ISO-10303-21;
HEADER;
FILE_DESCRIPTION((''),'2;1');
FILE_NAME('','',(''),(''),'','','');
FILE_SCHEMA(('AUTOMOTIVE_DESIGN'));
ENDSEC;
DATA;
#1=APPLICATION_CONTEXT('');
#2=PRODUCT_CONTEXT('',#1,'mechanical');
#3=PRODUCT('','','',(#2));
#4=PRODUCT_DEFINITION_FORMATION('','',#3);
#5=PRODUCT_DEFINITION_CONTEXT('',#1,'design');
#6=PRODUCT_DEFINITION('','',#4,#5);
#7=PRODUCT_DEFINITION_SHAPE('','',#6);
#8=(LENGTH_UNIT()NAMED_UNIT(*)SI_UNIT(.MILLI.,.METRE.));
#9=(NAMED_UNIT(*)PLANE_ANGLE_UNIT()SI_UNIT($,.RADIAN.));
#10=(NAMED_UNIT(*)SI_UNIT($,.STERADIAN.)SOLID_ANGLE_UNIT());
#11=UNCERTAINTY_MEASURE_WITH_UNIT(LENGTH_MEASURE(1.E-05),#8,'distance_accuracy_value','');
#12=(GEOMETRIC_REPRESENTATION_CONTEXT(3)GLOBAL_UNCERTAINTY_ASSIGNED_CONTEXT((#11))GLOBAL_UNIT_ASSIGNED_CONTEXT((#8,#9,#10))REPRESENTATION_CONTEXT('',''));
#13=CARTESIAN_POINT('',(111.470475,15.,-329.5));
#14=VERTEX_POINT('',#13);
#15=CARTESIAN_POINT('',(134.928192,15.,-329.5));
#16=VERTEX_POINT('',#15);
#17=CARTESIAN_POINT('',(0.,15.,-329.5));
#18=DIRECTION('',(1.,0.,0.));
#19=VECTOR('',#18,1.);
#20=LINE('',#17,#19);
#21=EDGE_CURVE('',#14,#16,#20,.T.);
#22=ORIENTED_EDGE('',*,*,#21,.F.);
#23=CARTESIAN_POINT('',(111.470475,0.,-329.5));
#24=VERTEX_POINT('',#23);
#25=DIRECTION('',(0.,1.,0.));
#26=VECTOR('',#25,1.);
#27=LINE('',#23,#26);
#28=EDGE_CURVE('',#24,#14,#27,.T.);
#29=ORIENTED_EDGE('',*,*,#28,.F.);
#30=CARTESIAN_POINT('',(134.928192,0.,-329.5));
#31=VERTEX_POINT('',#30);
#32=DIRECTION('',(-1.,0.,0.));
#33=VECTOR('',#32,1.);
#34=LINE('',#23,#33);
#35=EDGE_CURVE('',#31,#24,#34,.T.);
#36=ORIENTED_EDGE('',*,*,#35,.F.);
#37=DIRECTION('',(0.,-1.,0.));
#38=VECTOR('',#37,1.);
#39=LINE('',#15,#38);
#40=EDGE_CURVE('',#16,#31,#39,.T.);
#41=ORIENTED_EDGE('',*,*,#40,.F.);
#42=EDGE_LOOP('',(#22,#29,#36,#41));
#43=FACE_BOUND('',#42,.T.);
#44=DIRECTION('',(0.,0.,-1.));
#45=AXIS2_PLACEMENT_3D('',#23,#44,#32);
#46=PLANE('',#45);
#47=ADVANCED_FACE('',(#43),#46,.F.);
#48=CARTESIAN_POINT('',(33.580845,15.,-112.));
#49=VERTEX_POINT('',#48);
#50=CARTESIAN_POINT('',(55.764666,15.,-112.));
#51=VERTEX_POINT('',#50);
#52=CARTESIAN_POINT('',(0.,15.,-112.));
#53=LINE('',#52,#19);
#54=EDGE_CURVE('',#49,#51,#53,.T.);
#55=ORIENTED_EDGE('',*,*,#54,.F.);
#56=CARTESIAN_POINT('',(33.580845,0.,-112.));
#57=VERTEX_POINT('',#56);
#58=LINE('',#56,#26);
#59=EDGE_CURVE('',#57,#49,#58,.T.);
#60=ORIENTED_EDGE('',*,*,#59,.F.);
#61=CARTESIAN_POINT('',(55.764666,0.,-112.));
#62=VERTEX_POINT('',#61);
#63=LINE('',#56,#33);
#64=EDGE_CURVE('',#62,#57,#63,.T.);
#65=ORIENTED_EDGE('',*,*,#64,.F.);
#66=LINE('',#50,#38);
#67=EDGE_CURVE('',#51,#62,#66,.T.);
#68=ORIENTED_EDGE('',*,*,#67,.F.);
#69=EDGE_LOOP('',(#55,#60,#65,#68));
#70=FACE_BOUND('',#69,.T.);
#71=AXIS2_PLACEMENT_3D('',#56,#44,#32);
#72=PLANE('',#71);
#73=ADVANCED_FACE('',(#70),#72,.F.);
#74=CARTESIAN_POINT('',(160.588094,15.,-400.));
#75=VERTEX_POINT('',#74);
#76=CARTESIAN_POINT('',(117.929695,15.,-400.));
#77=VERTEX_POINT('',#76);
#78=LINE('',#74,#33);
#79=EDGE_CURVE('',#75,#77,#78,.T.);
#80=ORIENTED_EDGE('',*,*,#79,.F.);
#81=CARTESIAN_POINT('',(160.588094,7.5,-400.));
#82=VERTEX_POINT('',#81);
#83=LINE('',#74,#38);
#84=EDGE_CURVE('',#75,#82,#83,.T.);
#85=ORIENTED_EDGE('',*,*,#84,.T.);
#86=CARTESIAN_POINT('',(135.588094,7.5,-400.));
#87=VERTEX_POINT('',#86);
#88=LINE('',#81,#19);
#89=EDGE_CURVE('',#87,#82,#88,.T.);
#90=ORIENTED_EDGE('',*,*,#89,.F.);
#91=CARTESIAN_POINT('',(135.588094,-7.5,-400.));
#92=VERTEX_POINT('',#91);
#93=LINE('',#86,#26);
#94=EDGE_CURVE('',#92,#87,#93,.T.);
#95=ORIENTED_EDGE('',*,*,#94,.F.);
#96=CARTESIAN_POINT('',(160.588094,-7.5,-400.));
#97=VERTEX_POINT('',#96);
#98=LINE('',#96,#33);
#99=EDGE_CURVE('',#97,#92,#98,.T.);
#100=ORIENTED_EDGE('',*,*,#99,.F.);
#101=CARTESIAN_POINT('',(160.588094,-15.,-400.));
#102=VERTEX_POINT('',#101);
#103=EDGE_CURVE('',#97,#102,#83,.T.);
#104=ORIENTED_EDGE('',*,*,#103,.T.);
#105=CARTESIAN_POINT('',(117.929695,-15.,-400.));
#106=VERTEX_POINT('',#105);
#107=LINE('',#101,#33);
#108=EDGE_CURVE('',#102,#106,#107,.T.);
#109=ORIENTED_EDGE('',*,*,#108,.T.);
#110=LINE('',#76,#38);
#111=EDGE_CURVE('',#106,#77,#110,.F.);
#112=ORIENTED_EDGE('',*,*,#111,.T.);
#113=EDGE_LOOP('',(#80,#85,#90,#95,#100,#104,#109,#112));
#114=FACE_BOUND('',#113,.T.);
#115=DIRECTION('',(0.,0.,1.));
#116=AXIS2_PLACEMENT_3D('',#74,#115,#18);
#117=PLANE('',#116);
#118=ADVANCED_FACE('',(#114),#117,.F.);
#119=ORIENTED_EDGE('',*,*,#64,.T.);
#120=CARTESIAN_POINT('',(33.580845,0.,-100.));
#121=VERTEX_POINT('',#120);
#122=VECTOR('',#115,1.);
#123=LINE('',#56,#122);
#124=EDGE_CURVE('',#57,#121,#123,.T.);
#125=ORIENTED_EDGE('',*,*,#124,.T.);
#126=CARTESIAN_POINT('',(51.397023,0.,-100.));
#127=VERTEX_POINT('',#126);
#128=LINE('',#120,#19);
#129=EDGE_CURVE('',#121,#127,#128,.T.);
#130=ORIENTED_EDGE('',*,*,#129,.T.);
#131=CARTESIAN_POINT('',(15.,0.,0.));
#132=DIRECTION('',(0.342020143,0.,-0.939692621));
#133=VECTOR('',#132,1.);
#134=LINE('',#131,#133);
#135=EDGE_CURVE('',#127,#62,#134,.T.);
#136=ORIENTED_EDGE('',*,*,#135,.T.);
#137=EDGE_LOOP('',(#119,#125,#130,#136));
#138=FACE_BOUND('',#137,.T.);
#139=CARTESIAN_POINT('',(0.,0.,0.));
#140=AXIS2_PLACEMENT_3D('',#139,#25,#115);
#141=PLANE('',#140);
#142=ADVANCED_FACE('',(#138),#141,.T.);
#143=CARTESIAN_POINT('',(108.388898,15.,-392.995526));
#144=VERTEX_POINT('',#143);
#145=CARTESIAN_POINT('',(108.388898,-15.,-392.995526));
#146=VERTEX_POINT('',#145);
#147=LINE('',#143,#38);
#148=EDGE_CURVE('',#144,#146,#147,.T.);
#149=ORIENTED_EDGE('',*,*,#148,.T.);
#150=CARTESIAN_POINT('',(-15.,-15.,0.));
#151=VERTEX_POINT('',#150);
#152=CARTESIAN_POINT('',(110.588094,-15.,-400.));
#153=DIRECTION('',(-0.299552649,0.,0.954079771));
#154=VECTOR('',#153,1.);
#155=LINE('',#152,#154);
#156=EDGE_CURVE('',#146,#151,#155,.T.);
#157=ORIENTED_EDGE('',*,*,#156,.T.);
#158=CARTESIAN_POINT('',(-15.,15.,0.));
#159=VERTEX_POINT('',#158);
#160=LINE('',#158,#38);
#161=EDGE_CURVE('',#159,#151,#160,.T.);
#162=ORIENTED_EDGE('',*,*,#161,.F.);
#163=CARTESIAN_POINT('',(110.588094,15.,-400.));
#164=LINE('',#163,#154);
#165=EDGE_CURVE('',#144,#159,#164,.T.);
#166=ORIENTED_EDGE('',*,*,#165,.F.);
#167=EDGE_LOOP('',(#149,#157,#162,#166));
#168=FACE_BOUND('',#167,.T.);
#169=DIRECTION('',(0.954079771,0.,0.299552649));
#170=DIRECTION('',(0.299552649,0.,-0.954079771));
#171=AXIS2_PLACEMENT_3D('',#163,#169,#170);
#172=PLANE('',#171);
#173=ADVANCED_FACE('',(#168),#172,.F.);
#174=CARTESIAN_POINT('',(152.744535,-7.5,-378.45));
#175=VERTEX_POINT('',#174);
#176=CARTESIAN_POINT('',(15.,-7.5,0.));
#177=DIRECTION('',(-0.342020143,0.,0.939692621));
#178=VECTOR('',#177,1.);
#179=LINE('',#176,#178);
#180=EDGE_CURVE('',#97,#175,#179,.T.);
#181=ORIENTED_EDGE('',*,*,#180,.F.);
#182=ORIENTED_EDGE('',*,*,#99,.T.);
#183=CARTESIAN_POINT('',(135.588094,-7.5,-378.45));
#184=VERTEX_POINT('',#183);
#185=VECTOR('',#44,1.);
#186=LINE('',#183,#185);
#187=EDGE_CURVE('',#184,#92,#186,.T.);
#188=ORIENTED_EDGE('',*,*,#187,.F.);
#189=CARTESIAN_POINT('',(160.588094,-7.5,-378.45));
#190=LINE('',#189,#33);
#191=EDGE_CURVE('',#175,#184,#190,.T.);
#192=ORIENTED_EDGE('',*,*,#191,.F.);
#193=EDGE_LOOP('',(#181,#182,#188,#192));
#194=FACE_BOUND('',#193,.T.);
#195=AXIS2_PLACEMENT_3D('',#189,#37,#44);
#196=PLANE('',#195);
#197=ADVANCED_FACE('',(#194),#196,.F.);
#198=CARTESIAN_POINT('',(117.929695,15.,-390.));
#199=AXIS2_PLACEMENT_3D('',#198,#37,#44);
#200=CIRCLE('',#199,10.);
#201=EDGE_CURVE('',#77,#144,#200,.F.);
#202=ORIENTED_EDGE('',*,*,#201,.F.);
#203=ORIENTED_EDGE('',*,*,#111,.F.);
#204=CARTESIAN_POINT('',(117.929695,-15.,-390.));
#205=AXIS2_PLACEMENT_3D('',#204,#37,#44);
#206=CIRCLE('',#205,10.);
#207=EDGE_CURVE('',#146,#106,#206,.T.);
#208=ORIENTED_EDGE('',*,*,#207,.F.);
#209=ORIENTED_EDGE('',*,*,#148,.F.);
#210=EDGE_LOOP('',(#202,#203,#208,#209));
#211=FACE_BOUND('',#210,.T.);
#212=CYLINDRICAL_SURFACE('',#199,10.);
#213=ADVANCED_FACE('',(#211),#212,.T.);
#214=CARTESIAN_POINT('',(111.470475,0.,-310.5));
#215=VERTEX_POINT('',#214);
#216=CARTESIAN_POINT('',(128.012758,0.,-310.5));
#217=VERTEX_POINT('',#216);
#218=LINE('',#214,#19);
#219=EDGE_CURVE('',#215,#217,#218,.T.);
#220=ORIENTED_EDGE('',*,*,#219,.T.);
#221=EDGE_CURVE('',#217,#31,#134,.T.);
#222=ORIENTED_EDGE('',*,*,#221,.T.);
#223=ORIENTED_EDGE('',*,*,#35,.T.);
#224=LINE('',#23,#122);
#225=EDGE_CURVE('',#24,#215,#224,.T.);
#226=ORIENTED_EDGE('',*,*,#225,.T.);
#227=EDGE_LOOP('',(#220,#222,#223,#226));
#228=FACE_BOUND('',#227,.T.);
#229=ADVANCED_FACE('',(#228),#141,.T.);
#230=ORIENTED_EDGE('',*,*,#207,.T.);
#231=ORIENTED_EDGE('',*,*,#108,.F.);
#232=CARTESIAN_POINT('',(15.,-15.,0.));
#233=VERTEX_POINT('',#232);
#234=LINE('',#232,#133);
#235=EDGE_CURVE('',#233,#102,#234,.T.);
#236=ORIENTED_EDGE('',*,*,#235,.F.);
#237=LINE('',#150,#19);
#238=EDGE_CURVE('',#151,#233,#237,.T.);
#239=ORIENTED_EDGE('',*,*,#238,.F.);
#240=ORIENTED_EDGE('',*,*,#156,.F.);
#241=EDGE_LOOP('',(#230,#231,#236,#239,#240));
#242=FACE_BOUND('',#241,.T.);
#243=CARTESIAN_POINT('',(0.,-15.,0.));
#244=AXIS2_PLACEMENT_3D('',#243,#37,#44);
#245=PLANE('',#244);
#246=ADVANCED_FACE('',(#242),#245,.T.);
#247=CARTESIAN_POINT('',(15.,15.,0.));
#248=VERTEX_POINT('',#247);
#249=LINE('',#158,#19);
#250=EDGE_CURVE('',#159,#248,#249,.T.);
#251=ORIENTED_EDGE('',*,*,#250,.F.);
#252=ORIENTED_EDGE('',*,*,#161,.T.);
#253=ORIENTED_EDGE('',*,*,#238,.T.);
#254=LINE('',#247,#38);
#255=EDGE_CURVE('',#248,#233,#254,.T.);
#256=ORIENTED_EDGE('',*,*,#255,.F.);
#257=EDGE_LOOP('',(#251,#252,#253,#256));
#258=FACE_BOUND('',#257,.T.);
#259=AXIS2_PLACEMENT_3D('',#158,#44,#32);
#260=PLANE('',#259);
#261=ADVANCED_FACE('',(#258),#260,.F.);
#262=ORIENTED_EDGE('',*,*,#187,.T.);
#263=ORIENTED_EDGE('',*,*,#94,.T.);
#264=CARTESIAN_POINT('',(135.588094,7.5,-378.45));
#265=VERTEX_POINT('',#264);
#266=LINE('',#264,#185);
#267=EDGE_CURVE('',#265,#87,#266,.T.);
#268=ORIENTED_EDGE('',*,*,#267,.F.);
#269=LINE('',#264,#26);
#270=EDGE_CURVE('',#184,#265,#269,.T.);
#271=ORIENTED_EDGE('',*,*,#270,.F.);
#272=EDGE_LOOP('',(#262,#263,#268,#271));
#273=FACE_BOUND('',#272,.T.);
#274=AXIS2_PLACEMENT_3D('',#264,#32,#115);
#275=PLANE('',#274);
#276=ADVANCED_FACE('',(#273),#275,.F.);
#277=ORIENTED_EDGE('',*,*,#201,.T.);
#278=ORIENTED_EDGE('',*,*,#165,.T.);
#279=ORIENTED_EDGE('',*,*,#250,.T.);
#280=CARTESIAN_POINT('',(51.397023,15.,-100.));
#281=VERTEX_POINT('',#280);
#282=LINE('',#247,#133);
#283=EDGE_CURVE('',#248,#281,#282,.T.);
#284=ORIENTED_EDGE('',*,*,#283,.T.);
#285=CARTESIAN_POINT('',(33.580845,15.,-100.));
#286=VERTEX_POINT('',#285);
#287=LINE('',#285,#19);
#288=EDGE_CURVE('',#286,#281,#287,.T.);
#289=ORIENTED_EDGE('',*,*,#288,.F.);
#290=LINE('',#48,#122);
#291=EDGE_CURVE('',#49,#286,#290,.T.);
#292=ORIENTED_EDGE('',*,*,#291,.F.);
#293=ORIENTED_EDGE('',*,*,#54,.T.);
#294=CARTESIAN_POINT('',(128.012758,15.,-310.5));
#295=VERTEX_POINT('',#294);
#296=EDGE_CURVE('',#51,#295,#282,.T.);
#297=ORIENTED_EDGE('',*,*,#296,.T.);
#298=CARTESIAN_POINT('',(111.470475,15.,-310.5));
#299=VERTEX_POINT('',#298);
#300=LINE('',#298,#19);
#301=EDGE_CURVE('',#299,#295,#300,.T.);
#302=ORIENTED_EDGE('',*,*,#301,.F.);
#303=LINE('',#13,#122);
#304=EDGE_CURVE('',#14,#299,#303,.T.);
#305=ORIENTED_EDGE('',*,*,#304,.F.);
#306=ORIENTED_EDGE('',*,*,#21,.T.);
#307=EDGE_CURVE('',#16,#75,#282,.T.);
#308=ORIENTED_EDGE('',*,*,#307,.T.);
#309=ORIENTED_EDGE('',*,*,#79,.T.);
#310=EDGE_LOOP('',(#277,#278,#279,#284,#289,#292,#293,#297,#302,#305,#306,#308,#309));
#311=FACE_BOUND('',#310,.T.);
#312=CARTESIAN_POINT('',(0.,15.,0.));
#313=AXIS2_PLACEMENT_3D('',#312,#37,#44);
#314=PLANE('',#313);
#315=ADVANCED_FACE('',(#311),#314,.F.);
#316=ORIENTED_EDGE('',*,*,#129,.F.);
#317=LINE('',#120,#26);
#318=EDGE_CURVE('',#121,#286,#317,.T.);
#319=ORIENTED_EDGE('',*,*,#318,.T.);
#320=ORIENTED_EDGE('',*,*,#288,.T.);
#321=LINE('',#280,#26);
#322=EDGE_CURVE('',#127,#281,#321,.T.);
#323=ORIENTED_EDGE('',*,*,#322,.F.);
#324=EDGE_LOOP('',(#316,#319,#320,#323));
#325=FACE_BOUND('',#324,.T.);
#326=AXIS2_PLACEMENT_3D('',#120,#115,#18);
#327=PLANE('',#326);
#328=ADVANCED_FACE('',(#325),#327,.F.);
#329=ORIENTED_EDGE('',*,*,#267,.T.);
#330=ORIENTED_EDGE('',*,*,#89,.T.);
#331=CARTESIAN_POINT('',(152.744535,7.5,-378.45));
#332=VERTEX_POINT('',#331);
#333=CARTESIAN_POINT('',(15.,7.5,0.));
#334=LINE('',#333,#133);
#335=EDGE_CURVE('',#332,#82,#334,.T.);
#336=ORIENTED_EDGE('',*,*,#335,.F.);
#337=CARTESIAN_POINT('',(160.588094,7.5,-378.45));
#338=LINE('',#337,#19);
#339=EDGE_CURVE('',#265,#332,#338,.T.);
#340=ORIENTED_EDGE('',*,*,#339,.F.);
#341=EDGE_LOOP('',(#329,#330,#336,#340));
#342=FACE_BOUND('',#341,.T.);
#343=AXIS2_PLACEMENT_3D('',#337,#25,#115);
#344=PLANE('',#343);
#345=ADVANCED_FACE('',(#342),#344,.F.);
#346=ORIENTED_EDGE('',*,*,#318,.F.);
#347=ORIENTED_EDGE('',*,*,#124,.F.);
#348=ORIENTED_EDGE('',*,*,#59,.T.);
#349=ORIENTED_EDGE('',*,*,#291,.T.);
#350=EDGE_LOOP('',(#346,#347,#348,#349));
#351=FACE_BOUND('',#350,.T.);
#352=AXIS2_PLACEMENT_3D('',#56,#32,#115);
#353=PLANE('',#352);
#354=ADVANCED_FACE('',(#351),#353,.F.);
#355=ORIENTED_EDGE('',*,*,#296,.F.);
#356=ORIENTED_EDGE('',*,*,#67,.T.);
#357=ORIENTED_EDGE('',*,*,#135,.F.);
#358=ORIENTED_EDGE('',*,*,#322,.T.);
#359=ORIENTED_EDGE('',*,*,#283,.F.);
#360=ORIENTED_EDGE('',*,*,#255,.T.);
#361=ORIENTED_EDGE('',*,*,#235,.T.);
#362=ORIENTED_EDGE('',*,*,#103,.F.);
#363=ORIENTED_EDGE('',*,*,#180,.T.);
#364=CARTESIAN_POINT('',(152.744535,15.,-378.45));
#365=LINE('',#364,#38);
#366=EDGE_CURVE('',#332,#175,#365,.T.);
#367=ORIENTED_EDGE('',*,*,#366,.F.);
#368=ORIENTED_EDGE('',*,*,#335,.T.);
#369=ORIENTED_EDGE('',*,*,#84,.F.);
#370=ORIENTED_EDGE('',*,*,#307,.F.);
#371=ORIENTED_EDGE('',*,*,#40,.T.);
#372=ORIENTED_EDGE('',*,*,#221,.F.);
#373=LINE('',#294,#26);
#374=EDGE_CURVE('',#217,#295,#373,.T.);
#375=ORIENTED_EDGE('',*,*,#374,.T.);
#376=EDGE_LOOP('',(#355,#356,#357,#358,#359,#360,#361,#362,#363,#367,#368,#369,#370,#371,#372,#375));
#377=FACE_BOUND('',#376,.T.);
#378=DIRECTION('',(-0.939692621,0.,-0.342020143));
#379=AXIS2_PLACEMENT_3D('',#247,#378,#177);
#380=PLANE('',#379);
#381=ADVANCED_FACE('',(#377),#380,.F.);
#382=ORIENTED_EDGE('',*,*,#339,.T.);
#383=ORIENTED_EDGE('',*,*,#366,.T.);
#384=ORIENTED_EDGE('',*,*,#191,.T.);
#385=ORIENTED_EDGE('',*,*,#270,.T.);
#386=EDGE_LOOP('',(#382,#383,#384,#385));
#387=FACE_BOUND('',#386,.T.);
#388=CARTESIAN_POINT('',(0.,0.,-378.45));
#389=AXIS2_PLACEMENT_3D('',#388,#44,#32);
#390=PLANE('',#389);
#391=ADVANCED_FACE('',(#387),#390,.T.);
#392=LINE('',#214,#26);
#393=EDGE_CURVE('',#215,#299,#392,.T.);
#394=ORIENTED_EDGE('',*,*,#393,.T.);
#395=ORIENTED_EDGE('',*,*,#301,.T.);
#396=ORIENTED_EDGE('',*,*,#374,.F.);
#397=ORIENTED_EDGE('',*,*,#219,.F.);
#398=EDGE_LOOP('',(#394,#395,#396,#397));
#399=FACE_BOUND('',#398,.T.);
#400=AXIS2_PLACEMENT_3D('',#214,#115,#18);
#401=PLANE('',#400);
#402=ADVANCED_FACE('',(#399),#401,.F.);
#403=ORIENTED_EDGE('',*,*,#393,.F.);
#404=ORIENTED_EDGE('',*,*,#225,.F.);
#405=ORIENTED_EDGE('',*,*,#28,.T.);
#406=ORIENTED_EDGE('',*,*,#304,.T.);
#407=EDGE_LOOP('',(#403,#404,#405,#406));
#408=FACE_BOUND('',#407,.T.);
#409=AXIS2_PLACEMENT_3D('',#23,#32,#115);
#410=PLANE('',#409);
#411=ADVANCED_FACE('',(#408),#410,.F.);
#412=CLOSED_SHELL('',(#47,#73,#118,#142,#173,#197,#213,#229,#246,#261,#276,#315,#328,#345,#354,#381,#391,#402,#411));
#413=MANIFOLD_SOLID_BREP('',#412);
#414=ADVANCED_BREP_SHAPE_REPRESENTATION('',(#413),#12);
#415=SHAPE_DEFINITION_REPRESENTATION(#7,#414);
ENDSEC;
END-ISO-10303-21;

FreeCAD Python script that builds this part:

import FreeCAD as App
import Part
import Sketcher
from FreeCAD import Vector
Q = App.Units.Quantity


def edges_at(feature, points):
    """Names of the edges that pass closest to the given points."""
    edges = feature.Shape.Edges
    near = lambda p: min(range(len(edges)), key=lambda i: edges[i].distToShape(Part.Vertex(*p))[0])
    return sorted({f"Edge{near(p) + 1}" for p in points})


def add_polygon(sketch, points):
    """Adds a closed chain of lines whose ends are joined by coincident constraints."""
    first, n = sketch.GeometryCount, len(points)
    for a, b in zip(points, points[1:] + points[:1]):
        sketch.addGeometry(Part.LineSegment(App.Vector(*a, 0), App.Vector(*b, 0)), False)
    for i in range(n):
        sketch.addConstraint(Sketcher.Constraint("Coincident", first + i, 2, first + (i + 1) % n, 1))

doc = App.newDocument("Part")
body = doc.addObject("PartDesign::Body", "Body")

# Sketch on XZ plane
sketch1 = body.newObject("Sketcher::SketchObject", "Sketch")
sketch1.AttachmentSupport = (doc.getObject("XZ_Plane"), [""])
sketch1.MapMode = "FlatFace"
add_polygon(sketch1, [(15, 0), (160.588094, -400), (110.588094, -400), (-15, 0)])  # lines 0-3
sketch1.addConstraint(Sketcher.Constraint("Horizontal", 1))
sketch1.addConstraint(Sketcher.Constraint("Horizontal", 3))
sketch1.addConstraint(Sketcher.Constraint("Symmetric", 2, 2, 3, 2, -1, 1))
sketch1.addConstraint(Sketcher.Constraint("DistanceX", 1, 2, 1, 1, Q("50 mm")))
sketch1.addConstraint(Sketcher.Constraint("DistanceX", 3, 1, 3, 2, Q("30 mm")))
sketch1.addConstraint(Sketcher.Constraint("Angle", 0, Q("-70 deg")))
sketch1.addConstraint(Sketcher.Constraint("DistanceY", 0, 2, -1, 1, Q("400 mm")))
pad1 = body.newObject("PartDesign::Pad", "Pad")
pad1.Profile = sketch1
pad1.Length = 30
pad1.Midplane = True

# Sketch on XY plane
sketch2 = body.newObject("Sketcher::SketchObject", "Sketch001")
sketch2.AttachmentSupport = (doc.getObject("XY_Plane"), [""])
sketch2.MapMode = "FlatFace"
sketch2.AttachmentOffset = App.Placement(Vector(0, 0, -400), App.Rotation())
add_polygon(sketch2, [(160.588094, 7.5), (160.588094, -7.5), (135.588094, -7.5), (135.588094, 7.5)])  # lines 0-3
sketch2.addConstraint(Sketcher.Constraint("Vertical", 0))
sketch2.addConstraint(Sketcher.Constraint("Horizontal", 1))
sketch2.addConstraint(Sketcher.Constraint("Vertical", 2))
sketch2.addConstraint(Sketcher.Constraint("Horizontal", 3))
sketch2.addConstraint(Sketcher.Constraint("DistanceX", 1, 2, 1, 1, Q("25 mm")))
sketch2.addConstraint(Sketcher.Constraint("DistanceY", 0, 2, 0, 1, Q("15 mm")))
sketch2.addConstraint(Sketcher.Constraint("DistanceY", 0, 2, -1, 1, Q("7.5 mm")))
sketch2.addConstraint(Sketcher.Constraint("DistanceX", -1, 1, 0, 2, Q("160.588094 mm")))
pocket1 = body.newObject("PartDesign::Pocket", "Pocket")
pocket1.Profile = sketch2
pocket1.Length = 21.55
pocket1.Reversed = True
doc.recompute()

fillet = body.newObject("PartDesign::Fillet", "Fillet")
fillet.Base = (pocket1, edges_at(pocket1, [(110.588, 0, -400)]))
fillet.Radius = 10

# Sketch on XZ plane
sketch3 = body.newObject("Sketcher::SketchObject", "Sketch002")
sketch3.AttachmentSupport = (doc.getObject("XZ_Plane"), [""])
sketch3.MapMode = "FlatFace"
sketch3.AttachmentOffset = App.Placement(Vector(0, 0, -15), App.Rotation())
add_polygon(sketch3, [(111.470475, -329.5), (111.470475, -310.5), (151.470475, -310.5), (151.470475, -329.5)])  # lines 0-3
add_polygon(sketch3, [(33.580845, -112), (33.580845, -100), (73.580845, -100), (73.580845, -112)])  # lines 4-7
sketch3.addConstraint(Sketcher.Constraint("Vertical", 0))
sketch3.addConstraint(Sketcher.Constraint("Horizontal", 1))
sketch3.addConstraint(Sketcher.Constraint("Vertical", 2))
sketch3.addConstraint(Sketcher.Constraint("Horizontal", 3))
sketch3.addConstraint(Sketcher.Constraint("Vertical", 4))
sketch3.addConstraint(Sketcher.Constraint("Horizontal", 5))
sketch3.addConstraint(Sketcher.Constraint("Vertical", 6))
sketch3.addConstraint(Sketcher.Constraint("Horizontal", 7))
sketch3.addConstraint(Sketcher.Constraint("Equal", 3, 5))
sketch3.addConstraint(Sketcher.Constraint("DistanceX", 1, 1, 1, 2, Q("40 mm")))
sketch3.addConstraint(Sketcher.Constraint("DistanceY", 0, 1, 0, 2, Q("19 mm")))
sketch3.addConstraint(Sketcher.Constraint("DistanceY", 4, 1, 4, 2, Q("12 mm")))
sketch3.addConstraint(Sketcher.Constraint("DistanceY", 4, 2, -1, 1, Q("100 mm")))
sketch3.addConstraint(Sketcher.Constraint("DistanceY", 0, 2, -1, 1, Q("310.5 mm")))
sketch3.addConstraint(Sketcher.Constraint("DistanceX", 4, 2, 0, 2, Q("77.88963 mm")))
sketch3.addConstraint(Sketcher.Constraint("DistanceX", -1, 1, 0, 2, Q("111.470475 mm")))
pocket2 = body.newObject("PartDesign::Pocket", "Pocket001")
pocket2.Profile = sketch3
pocket2.Length = 15
pocket2.Reversed = True

doc.recompute()
